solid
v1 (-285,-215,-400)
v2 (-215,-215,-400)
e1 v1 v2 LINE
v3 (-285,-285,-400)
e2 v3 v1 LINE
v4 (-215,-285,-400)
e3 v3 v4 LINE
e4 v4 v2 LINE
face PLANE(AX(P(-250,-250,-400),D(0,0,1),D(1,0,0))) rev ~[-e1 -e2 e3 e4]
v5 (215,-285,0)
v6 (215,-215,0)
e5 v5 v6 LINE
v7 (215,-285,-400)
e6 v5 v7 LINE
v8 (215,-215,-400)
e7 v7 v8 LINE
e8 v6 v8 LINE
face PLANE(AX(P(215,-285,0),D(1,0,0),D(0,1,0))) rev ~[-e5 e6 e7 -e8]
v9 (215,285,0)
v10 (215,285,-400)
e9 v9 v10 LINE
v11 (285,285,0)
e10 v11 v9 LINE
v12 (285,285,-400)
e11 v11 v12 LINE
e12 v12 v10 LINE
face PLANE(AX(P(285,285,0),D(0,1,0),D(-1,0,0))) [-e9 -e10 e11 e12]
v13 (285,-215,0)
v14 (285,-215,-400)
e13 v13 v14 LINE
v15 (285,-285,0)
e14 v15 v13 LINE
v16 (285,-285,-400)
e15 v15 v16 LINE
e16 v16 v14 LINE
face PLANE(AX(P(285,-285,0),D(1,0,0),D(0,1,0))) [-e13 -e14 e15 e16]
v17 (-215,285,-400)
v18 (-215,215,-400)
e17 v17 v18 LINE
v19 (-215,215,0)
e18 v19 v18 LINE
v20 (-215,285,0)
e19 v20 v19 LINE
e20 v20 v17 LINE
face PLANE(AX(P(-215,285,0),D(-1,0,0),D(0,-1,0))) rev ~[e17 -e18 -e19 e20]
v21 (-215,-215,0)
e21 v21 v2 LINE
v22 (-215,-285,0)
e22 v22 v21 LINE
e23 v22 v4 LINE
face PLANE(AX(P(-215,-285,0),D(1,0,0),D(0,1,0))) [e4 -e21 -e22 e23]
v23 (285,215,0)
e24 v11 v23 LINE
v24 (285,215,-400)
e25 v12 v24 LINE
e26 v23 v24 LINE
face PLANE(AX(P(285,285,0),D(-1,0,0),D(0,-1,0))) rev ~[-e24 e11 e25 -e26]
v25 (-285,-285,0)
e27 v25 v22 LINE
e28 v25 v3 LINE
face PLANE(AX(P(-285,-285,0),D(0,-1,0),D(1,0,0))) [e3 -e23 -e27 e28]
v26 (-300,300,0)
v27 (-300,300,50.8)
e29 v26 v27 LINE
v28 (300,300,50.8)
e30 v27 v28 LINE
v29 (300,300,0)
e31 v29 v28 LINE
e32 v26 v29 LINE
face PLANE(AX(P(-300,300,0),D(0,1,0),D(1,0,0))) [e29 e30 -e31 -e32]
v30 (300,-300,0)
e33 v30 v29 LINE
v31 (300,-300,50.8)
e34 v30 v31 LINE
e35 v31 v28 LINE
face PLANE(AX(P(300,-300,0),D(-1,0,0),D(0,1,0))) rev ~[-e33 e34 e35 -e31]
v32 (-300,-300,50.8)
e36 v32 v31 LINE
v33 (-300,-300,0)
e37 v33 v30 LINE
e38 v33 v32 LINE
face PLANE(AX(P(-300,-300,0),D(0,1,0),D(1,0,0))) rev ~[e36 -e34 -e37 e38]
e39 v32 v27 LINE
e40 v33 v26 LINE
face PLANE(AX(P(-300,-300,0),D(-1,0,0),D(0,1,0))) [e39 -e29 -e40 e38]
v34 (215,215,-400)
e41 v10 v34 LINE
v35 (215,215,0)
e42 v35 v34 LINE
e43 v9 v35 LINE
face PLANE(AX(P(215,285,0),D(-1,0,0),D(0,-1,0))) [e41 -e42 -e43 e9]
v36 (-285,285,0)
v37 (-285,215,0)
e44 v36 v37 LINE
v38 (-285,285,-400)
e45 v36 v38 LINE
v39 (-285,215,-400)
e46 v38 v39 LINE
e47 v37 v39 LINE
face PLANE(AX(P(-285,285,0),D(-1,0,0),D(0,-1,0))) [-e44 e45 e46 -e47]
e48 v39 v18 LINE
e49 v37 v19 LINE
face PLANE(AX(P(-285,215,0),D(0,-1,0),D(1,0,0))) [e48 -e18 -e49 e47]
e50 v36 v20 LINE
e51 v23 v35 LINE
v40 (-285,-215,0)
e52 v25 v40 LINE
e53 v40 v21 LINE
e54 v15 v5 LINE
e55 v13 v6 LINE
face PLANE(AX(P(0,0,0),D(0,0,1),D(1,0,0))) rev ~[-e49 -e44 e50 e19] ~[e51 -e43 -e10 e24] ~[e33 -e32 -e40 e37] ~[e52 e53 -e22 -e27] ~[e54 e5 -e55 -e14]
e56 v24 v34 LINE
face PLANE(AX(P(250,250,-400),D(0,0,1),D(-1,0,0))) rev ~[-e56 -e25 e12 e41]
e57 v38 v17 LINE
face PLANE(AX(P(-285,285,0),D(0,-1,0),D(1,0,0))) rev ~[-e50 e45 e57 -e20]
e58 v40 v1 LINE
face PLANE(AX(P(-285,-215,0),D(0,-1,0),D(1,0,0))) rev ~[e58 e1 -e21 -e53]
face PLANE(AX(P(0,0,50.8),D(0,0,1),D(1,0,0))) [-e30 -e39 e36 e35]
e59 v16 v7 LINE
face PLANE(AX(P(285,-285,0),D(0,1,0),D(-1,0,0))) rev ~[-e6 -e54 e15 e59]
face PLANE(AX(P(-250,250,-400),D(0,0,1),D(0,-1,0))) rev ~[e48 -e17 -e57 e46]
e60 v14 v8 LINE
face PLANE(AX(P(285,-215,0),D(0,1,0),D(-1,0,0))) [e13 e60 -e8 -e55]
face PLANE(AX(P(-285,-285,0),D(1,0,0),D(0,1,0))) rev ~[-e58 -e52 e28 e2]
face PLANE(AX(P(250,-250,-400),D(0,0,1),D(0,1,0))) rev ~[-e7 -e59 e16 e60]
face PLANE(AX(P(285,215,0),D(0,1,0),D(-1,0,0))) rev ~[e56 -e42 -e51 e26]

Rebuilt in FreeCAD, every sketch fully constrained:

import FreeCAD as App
import Part
import Sketcher

V = App.Vector
Q = App.Units.Quantity


def add_polygon(sketch, points):
    """Adds a closed chain of lines whose ends are joined by coincident constraints."""
    first, n = sketch.GeometryCount, len(points)
    for a, b in zip(points, points[1:] + points[:1]):
        sketch.addGeometry(Part.LineSegment(App.Vector(*a, 0), App.Vector(*b, 0)), False)
    for i in range(n):
        sketch.addConstraint(Sketcher.Constraint("Coincident", first + i, 2, first + (i + 1) % n, 1))

doc = App.newDocument("Part")
body = doc.addObject("PartDesign::Body", "Body")

# Sketch on XY plane
sketch1 = doc.addObject("Sketcher::SketchObject", "Sketch")
body.addObject(sketch1)
sketch1.AttachmentSupport = (doc.XY_Plane, [""])
sketch1.MapMode = "FlatFace"
add_polygon(sketch1, [(-300, 300), (-300, -300), (300, -300), (300, 300)])  # lines 0-3
sketch1.addConstraint(Sketcher.Constraint("Vertical", 0))
sketch1.addConstraint(Sketcher.Constraint("Horizontal", 1))
sketch1.addConstraint(Sketcher.Constraint("Vertical", 2))
sketch1.addConstraint(Sketcher.Constraint("Horizontal", 3))
sketch1.addConstraint(Sketcher.Constraint("Symmetric", 0, 2, 2, 2, -1, 1))
sketch1.addConstraint(Sketcher.Constraint("Equal", 3, 0))
sketch1.addConstraint(Sketcher.Constraint("DistanceX", 1, 1, 1, 2, Q("600 mm")))
pad1 = doc.addObject("PartDesign::Pad", "Pad")
body.addObject(pad1)
pad1.Profile = sketch1
pad1.Length = 50.8

# Sketch on XY plane
sketch2 = doc.addObject("Sketcher::SketchObject", "Sketch001")
body.addObject(sketch2)
sketch2.AttachmentSupport = (doc.XY_Plane, [""])
sketch2.MapMode = "FlatFace"
add_polygon(sketch2, [(-285, -215), (-285, -285), (-215, -285), (-215, -215)])  # lines 0-3
sketch2.addConstraint(Sketcher.Constraint("Vertical", 0))
sketch2.addConstraint(Sketcher.Constraint("Horizontal", 1))
sketch2.addConstraint(Sketcher.Constraint("Vertical", 2))
sketch2.addConstraint(Sketcher.Constraint("Horizontal", 3))
sketch2.addConstraint(Sketcher.Constraint("Equal", 3, 0))
sketch2.addConstraint(Sketcher.Constraint("DistanceX", 1, 1, 1, 2, Q("70 mm")))
sketch2.addConstraint(Sketcher.Constraint("DistanceX", 0, 2, -1, 1, Q("285 mm")))
sketch2.addConstraint(Sketcher.Constraint("DistanceY", 0, 2, -1, 1, Q("285 mm")))
pad2 = doc.addObject("PartDesign::Pad", "Pad001")
body.addObject(pad2)
pad2.Profile = sketch2
pad2.Length = 400
pad2.Reversed = True
body2 = doc.addObject("PartDesign::Body", "Body001")
doc.recompute()

body2.BaseFeature = body
doc.recompute()

body3 = doc.addObject("PartDesign::Body", "Body002")
body3.BaseFeature = body
body3.Placement = App.Placement(V(0, 0, 0), App.Rotation(V(0, 0, 1), 90))
boolean = doc.addObject("PartDesign::Boolean", "Boolean")
body2.addObject(boolean)
boolean.Type = "Fuse"
boolean.addObjects([body3])
doc.recompute()

body4 = doc.addObject("PartDesign::Body", "Body003")
body4.BaseFeature = body
body4.Placement = App.Placement(V(0, 0, 0), App.Rotation(V(0, 0, 1), 180))
boolean2 = doc.addObject("PartDesign::Boolean", "Boolean001")
body2.addObject(boolean2)
boolean2.Type = "Fuse"
boolean2.addObjects([body4])
doc.recompute()

body.Placement = App.Placement(V(0, 0, 0), App.Rotation(V(0, 0, 1), 270))
boolean3 = doc.addObject("PartDesign::Boolean", "Boolean002")
body2.addObject(boolean3)
boolean3.Type = "Fuse"
boolean3.addObjects([body])

doc.recompute()
